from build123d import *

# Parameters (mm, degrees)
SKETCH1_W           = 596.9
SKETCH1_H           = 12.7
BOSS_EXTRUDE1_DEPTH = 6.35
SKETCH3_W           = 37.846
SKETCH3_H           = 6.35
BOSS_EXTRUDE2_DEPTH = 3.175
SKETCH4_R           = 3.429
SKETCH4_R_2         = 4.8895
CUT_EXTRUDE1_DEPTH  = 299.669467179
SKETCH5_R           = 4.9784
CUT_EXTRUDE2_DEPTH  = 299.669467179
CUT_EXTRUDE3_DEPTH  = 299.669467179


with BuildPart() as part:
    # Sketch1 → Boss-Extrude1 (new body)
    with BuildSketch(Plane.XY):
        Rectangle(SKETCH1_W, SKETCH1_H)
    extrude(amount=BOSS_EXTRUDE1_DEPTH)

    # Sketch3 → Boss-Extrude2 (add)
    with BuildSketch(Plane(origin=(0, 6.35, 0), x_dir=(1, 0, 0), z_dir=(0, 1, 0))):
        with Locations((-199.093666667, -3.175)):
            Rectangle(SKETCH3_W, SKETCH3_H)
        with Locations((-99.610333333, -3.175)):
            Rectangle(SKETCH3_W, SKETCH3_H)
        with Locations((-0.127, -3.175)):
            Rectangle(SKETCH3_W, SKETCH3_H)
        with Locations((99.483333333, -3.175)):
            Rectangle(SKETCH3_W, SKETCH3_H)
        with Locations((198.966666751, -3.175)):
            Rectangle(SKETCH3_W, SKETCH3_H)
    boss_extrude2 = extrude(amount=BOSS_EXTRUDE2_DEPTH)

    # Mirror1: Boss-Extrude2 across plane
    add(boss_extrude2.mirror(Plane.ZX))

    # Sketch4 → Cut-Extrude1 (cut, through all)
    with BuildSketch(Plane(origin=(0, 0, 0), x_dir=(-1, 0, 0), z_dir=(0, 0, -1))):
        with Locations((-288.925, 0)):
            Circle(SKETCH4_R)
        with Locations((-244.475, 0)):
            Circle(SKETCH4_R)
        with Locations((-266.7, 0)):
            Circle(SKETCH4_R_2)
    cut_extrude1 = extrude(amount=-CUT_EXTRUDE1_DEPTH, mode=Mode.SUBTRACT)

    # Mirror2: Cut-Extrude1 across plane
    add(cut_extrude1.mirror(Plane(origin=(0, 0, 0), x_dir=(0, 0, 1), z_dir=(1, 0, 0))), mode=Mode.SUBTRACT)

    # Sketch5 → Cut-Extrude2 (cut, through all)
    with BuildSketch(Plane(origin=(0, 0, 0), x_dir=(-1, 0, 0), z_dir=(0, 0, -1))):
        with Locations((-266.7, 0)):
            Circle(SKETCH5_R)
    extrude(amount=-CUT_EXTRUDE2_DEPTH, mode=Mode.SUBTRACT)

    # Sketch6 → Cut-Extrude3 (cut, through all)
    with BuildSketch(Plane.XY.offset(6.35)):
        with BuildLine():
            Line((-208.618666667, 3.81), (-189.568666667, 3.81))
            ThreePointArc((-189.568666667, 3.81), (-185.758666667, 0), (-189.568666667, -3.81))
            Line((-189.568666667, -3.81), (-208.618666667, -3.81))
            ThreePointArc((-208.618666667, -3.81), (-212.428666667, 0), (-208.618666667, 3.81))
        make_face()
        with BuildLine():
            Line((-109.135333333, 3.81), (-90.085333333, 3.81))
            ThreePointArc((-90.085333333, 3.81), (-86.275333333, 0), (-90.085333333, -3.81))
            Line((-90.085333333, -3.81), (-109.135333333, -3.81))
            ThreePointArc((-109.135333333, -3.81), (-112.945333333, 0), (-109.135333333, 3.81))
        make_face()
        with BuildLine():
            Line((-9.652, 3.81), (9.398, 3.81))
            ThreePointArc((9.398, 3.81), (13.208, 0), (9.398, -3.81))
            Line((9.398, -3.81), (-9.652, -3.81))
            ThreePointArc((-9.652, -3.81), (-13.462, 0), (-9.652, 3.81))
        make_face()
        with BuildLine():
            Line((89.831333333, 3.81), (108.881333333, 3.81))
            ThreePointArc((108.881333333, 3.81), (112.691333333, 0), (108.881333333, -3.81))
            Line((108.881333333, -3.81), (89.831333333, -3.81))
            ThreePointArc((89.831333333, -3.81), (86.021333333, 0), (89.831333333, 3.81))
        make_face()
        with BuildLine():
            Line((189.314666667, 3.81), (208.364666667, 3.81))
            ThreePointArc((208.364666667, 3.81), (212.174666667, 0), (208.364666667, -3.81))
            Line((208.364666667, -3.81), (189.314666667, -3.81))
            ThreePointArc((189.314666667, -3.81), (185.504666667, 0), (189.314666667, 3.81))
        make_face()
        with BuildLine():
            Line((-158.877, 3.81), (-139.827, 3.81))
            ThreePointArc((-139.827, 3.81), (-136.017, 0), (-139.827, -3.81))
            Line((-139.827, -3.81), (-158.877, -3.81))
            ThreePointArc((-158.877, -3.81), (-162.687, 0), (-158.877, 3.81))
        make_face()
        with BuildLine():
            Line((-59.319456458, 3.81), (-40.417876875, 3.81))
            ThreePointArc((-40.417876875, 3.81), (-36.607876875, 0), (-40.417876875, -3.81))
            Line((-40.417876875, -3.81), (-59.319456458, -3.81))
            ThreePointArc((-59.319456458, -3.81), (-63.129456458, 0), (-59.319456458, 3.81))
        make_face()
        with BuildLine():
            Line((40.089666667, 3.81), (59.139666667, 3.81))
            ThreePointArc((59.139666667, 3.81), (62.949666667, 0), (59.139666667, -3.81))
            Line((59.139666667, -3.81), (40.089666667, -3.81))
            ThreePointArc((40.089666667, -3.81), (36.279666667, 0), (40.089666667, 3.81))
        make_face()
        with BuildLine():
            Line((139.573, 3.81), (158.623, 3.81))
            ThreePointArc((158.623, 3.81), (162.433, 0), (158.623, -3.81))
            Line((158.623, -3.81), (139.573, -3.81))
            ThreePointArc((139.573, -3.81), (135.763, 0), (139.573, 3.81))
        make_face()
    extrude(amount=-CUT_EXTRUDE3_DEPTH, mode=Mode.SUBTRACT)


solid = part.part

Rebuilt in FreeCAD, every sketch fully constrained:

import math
import FreeCAD as App
import Part
import Sketcher

V = App.Vector
Q = App.Units.Quantity


def add_polygon(sketch, points):
    """Adds a closed chain of lines whose ends are joined by coincident constraints."""
    first, n = sketch.GeometryCount, len(points)
    for a, b in zip(points, points[1:] + points[:1]):
        sketch.addGeometry(Part.LineSegment(App.Vector(*a, 0), App.Vector(*b, 0)), False)
    for i in range(n):
        sketch.addConstraint(Sketcher.Constraint("Coincident", first + i, 2, first + (i + 1) % n, 1))

doc = App.newDocument("Part")
body = doc.addObject("PartDesign::Body", "Body")

# Sketch on XY plane
sketch1 = body.newObject("Sketcher::SketchObject", "Sketch")
sketch1.AttachmentSupport = (doc.getObject("XY_Plane"), [""])
sketch1.MapMode = "FlatFace"
add_polygon(sketch1, [(-298, 6), (-298, -6), (298, -6), (298, 6)])  # lines 0-3
sketch1.addConstraint(Sketcher.Constraint("Vertical", 0))
sketch1.addConstraint(Sketcher.Constraint("Horizontal", 1))
sketch1.addConstraint(Sketcher.Constraint("Vertical", 2))
sketch1.addConstraint(Sketcher.Constraint("Horizontal", 3))
sketch1.addConstraint(Sketcher.Constraint("Symmetric", 0, 2, 2, 2, -1, 1))
sketch1.addConstraint(Sketcher.Constraint("DistanceX", 1, 1, 1, 2, Q("23.5 in")))
sketch1.addConstraint(Sketcher.Constraint("DistanceY", 0, 2, 0, 1, Q("0.5 in")))
pad1 = body.newObject("PartDesign::Pad", "Pad")
pad1.Profile = sketch1
pad1.Length = Q("0.25 in")

# Sketch on XZ plane
sketch2 = body.newObject("Sketcher::SketchObject", "Sketch001")
sketch2.AttachmentSupport = (doc.getObject("XZ_Plane"), [""])
sketch2.MapMode = "FlatFace"
sketch2.AttachmentOffset = App.Placement(V(0, 0, -0.25 * 25.4), App.Rotation())
add_polygon(sketch2, [(-218, 0), (-218, 6), (-180, 6), (-180, 0)])  # lines 0-3
add_polygon(sketch2, [(-119, 0), (-119, 6), (-81, 6), (-81, 0)])  # lines 4-7
add_polygon(sketch2, [(-19, 0), (-19, 6), (19, 6), (19, 0)])  # lines 8-11
add_polygon(sketch2, [(81, 0), (81, 6), (118, 6), (118, 0)])  # lines 12-15
add_polygon(sketch2, [(180, 0), (180, 6), (218, 6), (218, 0)])  # lines 16-19
sketch2.addConstraint(Sketcher.Constraint("Vertical", 0))
sketch2.addConstraint(Sketcher.Constraint("Horizontal", 1))
sketch2.addConstraint(Sketcher.Constraint("Vertical", 2))
sketch2.addConstraint(Sketcher.Constraint("Horizontal", 3))
sketch2.addConstraint(Sketcher.Constraint("Vertical", 4))
sketch2.addConstraint(Sketcher.Constraint("Horizontal", 5))
sketch2.addConstraint(Sketcher.Constraint("Vertical", 6))
sketch2.addConstraint(Sketcher.Constraint("Horizontal", 7))
sketch2.addConstraint(Sketcher.Constraint("Vertical", 8))
sketch2.addConstraint(Sketcher.Constraint("Horizontal", 9))
sketch2.addConstraint(Sketcher.Constraint("Vertical", 10))
sketch2.addConstraint(Sketcher.Constraint("Horizontal", 11))
sketch2.addConstraint(Sketcher.Constraint("Vertical", 12))
sketch2.addConstraint(Sketcher.Constraint("Horizontal", 13))
sketch2.addConstraint(Sketcher.Constraint("Vertical", 14))
sketch2.addConstraint(Sketcher.Constraint("Horizontal", 15))
sketch2.addConstraint(Sketcher.Constraint("Vertical", 16))
sketch2.addConstraint(Sketcher.Constraint("Horizontal", 17))
sketch2.addConstraint(Sketcher.Constraint("Vertical", 18))
sketch2.addConstraint(Sketcher.Constraint("Horizontal", 19))
sketch2.addConstraint(Sketcher.Constraint("PointOnObject", 2, 2, -1))
sketch2.addConstraint(Sketcher.Constraint("PointOnObject", 6, 2, -1))
sketch2.addConstraint(Sketcher.Constraint("PointOnObject", 10, 2, -1))
sketch2.addConstraint(Sketcher.Constraint("PointOnObject", 14, 2, -1))
sketch2.addConstraint(Sketcher.Constraint("PointOnObject", 18, 2, -1))
sketch2.addConstraint(Sketcher.Constraint("Horizontal", 1, 2, 4, 2))
sketch2.addConstraint(Sketcher.Constraint("Horizontal", 5, 2, 8, 2))
sketch2.addConstraint(Sketcher.Constraint("Horizontal", 9, 2, 12, 2))
sketch2.addConstraint(Sketcher.Constraint("Horizontal", 13, 2, 16, 2))
sketch2.addConstraint(Sketcher.Constraint("Equal", 3, 5))
sketch2.addConstraint(Sketcher.Constraint("Equal", 7, 9))
sketch2.addConstraint(Sketcher.Constraint("Equal", 11, 13))
sketch2.addConstraint(Sketcher.Constraint("Equal", 15, 17))
sketch2.addConstraint(Sketcher.Constraint("DistanceX", 1, 1, 1, 2, Q("1.49 in")))
sketch2.addConstraint(Sketcher.Constraint("DistanceY", 0, 1, 0, 2, Q("0.25 in")))
sketch2.addConstraint(Sketcher.Constraint("DistanceX", 8, 2, -1, 1, Q("0.75 in")))
sketch2.addConstraint(Sketcher.Constraint("DistanceX", 0, 2, -1, 1, 218.016667))
sketch2.addConstraint(Sketcher.Constraint("DistanceX", 4, 2, -1, 1, 118.533333))
sketch2.addConstraint(Sketcher.Constraint("DistanceX", -1, 1, 12, 2, 80.560333))
sketch2.addConstraint(Sketcher.Constraint("DistanceX", -1, 1, 16, 2, 180.043667))
pad2 = body.newObject("PartDesign::Pad", "Pad001")
pad2.Profile = sketch2
pad2.Length = Q("0.125 in")
pad2.Reversed = True
doc.recompute()

mirrored = body.newObject("PartDesign::Mirrored", "Mirrored")
mirrored.Originals = [pad2]
mirrored.MirrorPlane = (doc.getObject("XZ_Plane"), [""])
body.Tip = mirrored

# Sketch on XY plane
sketch3 = body.newObject("Sketcher::SketchObject", "Sketch002")
sketch3.AttachmentSupport = (doc.getObject("XY_Plane"), [""])
sketch3.MapMode = "FlatFace"
sketch3.addGeometry(Part.Circle(V(288.9, 0, 0), V(0, 0, 1), 3.4), False)
sketch3.addGeometry(Part.Circle(V(244.5, 0, 0), V(0, 0, 1), 3.4), False)
sketch3.addGeometry(Part.Circle(V(266.7, 0, 0), V(0, 0, 1), 4.9), False)
sketch3.addConstraint(Sketcher.Constraint("Equal", 0, 1))
sketch3.addConstraint(Sketcher.Constraint("PointOnObject", 0, 3, -1))
sketch3.addConstraint(Sketcher.Constraint("PointOnObject", 1, 3, -1))
sketch3.addConstraint(Sketcher.Constraint("PointOnObject", 2, 3, -1))
sketch3.addConstraint(Sketcher.Constraint("Diameter", 0, Q("0.27 in")))
sketch3.addConstraint(Sketcher.Constraint("Diameter", 2, Q("0.385 in")))
sketch3.addConstraint(Sketcher.Constraint("DistanceX", -1, 1, 2, 3, Q("10.5 in")))
sketch3.addConstraint(Sketcher.Constraint("DistanceX", 1, 3, 0, 3, Q("1.75 in")))
sketch3.addConstraint(Sketcher.Constraint("DistanceX", -1, 1, 0, 3, Q("11.375 in")))
pocket1 = body.newObject("PartDesign::Pocket", "Pocket")
pocket1.Profile = sketch3
pocket1.Type = "ThroughAll"
pocket1.Reversed = True
doc.recompute()

mirrored2 = body.newObject("PartDesign::Mirrored", "Mirrored001")
mirrored2.Originals = [pocket1]
mirrored2.MirrorPlane = (doc.getObject("YZ_Plane"), [""])
body.Tip = mirrored2

# Sketch on XY plane
sketch4 = body.newObject("Sketcher::SketchObject", "Sketch003")
sketch4.AttachmentSupport = (doc.getObject("XY_Plane"), [""])
sketch4.MapMode = "FlatFace"
sketch4.addGeometry(Part.Circle(V(266.7, 0, 0), V(0, 0, 1), 5), False)
sketch4.addConstraint(Sketcher.Constraint("PointOnObject", 0, 3, -1))
sketch4.addConstraint(Sketcher.Constraint("Diameter", 0, Q("0.392 in")))
sketch4.addConstraint(Sketcher.Constraint("DistanceX", -1, 1, 0, 3, Q("10.5 in")))
pocket2 = body.newObject("PartDesign::Pocket", "Pocket001")
pocket2.Profile = sketch4
pocket2.Type = "ThroughAll"
pocket2.Reversed = True

# Sketch on XY plane
sketch5 = body.newObject("Sketcher::SketchObject", "Sketch004")
sketch5.AttachmentSupport = (doc.getObject("XY_Plane"), [""])
sketch5.MapMode = "FlatFace"
sketch5.AttachmentOffset = App.Placement(V(0, 0, 0.25 * 25.4), App.Rotation())
sketch5.addGeometry(Part.LineSegment(V(-189.6, 3.8, 0), V(-208.6, 3.8, 0)), False)
sketch5.addGeometry(Part.ArcOfCircle(Part.Circle(V(-208.6, 0, 0), V(0, 0, 1), 3.8), math.radians(90), math.radians(270)), False)
sketch5.addGeometry(Part.LineSegment(V(-208.6, -3.8, 0), V(-189.6, -3.8, 0)), False)
sketch5.addGeometry(Part.ArcOfCircle(Part.Circle(V(-189.6, 0, 0), V(0, 0, 1), 3.8), math.radians(-90), math.radians(90)), False)
sketch5.addGeometry(Part.LineSegment(V(-90.1, 3.8, 0), V(-109.1, 3.8, 0)), False)
sketch5.addGeometry(Part.ArcOfCircle(Part.Circle(V(-109.1, 0, 0), V(0, 0, 1), 3.8), math.radians(90), math.radians(270)), False)
sketch5.addGeometry(Part.LineSegment(V(-109.1, -3.8, 0), V(-90.1, -3.8, 0)), False)
sketch5.addGeometry(Part.ArcOfCircle(Part.Circle(V(-90.1, 0, 0), V(0, 0, 1), 3.8), math.radians(-90), math.radians(90)), False)
sketch5.addGeometry(Part.LineSegment(V(9.4, 3.8, 0), V(-9.7, 3.8, 0)), False)
sketch5.addGeometry(Part.ArcOfCircle(Part.Circle(V(-9.7, 0, 0), V(0, 0, 1), 3.8), math.radians(90), math.radians(270)), False)
sketch5.addGeometry(Part.LineSegment(V(-9.7, -3.8, 0), V(9.4, -3.8, 0)), False)
sketch5.addGeometry(Part.ArcOfCircle(Part.Circle(V(9.4, 0, 0), V(0, 0, 1), 3.8), math.radians(-90), math.radians(90)), False)
sketch5.addGeometry(Part.LineSegment(V(108.9, 3.8, 0), V(89.8, 3.8, 0)), False)
sketch5.addGeometry(Part.ArcOfCircle(Part.Circle(V(89.8, 0, 0), V(0, 0, 1), 3.8), math.radians(90), math.radians(270)), False)
sketch5.addGeometry(Part.LineSegment(V(89.8, -3.8, 0), V(108.9, -3.8, 0)), False)
sketch5.addGeometry(Part.ArcOfCircle(Part.Circle(V(108.9, 0, 0), V(0, 0, 1), 3.8), math.radians(-90), math.radians(90)), False)
sketch5.addGeometry(Part.LineSegment(V(208.4, 3.8, 0), V(189.3, 3.8, 0)), False)
sketch5.addGeometry(Part.ArcOfCircle(Part.Circle(V(189.3, 0, 0), V(0, 0, 1), 3.8), math.radians(90), math.radians(270)), False)
sketch5.addGeometry(Part.LineSegment(V(189.3, -3.8, 0), V(208.4, -3.8, 0)), False)
sketch5.addGeometry(Part.ArcOfCircle(Part.Circle(V(208.4, 0, 0), V(0, 0, 1), 3.8), math.radians(-90), math.radians(90)), False)
sketch5.addGeometry(Part.LineSegment(V(-139.8, 3.8, 0), V(-158.9, 3.8, 0)), False)
sketch5.addGeometry(Part.ArcOfCircle(Part.Circle(V(-158.9, 0, 0), V(0, 0, 1), 3.8), math.radians(90), math.radians(270)), False)
sketch5.addGeometry(Part.LineSegment(V(-158.9, -3.8, 0), V(-139.8, -3.8, 0)), False)
sketch5.addGeometry(Part.ArcOfCircle(Part.Circle(V(-139.8, 0, 0), V(0, 0, 1), 3.8), math.radians(-90), math.radians(90)), False)
sketch5.addGeometry(Part.LineSegment(V(-40.4, 3.8, 0), V(-59.3, 3.8, 0)), False)
sketch5.addGeometry(Part.ArcOfCircle(Part.Circle(V(-59.3, 0, 0), V(0, 0, 1), 3.8), math.radians(90), math.radians(270)), False)
sketch5.addGeometry(Part.LineSegment(V(-59.3, -3.8, 0), V(-40.4, -3.8, 0)), False)
sketch5.addGeometry(Part.ArcOfCircle(Part.Circle(V(-40.4, 0, 0), V(0, 0, 1), 3.8), math.radians(-90), math.radians(90)), False)
sketch5.addGeometry(Part.LineSegment(V(59.1, 3.8, 0), V(40.1, 3.8, 0)), False)
sketch5.addGeometry(Part.ArcOfCircle(Part.Circle(V(40.1, 0, 0), V(0, 0, 1), 3.8), math.radians(90), math.radians(270)), False)
sketch5.addGeometry(Part.LineSegment(V(40.1, -3.8, 0), V(59.1, -3.8, 0)), False)
sketch5.addGeometry(Part.ArcOfCircle(Part.Circle(V(59.1, 0, 0), V(0, 0, 1), 3.8), math.radians(-90), math.radians(90)), False)
sketch5.addGeometry(Part.LineSegment(V(158.6, 3.8, 0), V(139.6, 3.8, 0)), False)
sketch5.addGeometry(Part.ArcOfCircle(Part.Circle(V(139.6, 0, 0), V(0, 0, 1), 3.8), math.radians(90), math.radians(270)), False)
sketch5.addGeometry(Part.LineSegment(V(139.6, -3.8, 0), V(158.6, -3.8, 0)), False)
sketch5.addGeometry(Part.ArcOfCircle(Part.Circle(V(158.6, 0, 0), V(0, 0, 1), 3.8), math.radians(-90), math.radians(90)), False)
sketch5.addConstraint(Sketcher.Constraint("Tangent", 0, 2, 1, 1))
sketch5.addConstraint(Sketcher.Constraint("Tangent", 1, 2, 2, 1))
sketch5.addConstraint(Sketcher.Constraint("Tangent", 2, 2, 3, 1))
sketch5.addConstraint(Sketcher.Constraint("Tangent", 3, 2, 0, 1))
sketch5.addConstraint(Sketcher.Constraint("Tangent", 4, 2, 5, 1))
sketch5.addConstraint(Sketcher.Constraint("Tangent", 5, 2, 6, 1))
sketch5.addConstraint(Sketcher.Constraint("Tangent", 6, 2, 7, 1))
sketch5.addConstraint(Sketcher.Constraint("Tangent", 7, 2, 4, 1))
sketch5.addConstraint(Sketcher.Constraint("Tangent", 8, 2, 9, 1))
sketch5.addConstraint(Sketcher.Constraint("Tangent", 9, 2, 10, 1))
sketch5.addConstraint(Sketcher.Constraint("Tangent", 10, 2, 11, 1))
sketch5.addConstraint(Sketcher.Constraint("Tangent", 11, 2, 8, 1))
sketch5.addConstraint(Sketcher.Constraint("Tangent", 12, 2, 13, 1))
sketch5.addConstraint(Sketcher.Constraint("Tangent", 13, 2, 14, 1))
sketch5.addConstraint(Sketcher.Constraint("Tangent", 14, 2, 15, 1))
sketch5.addConstraint(Sketcher.Constraint("Tangent", 15, 2, 12, 1))
sketch5.addConstraint(Sketcher.Constraint("Tangent", 16, 2, 17, 1))
sketch5.addConstraint(Sketcher.Constraint("Tangent", 17, 2, 18, 1))
sketch5.addConstraint(Sketcher.Constraint("Tangent", 18, 2, 19, 1))
sketch5.addConstraint(Sketcher.Constraint("Tangent", 19, 2, 16, 1))
sketch5.addConstraint(Sketcher.Constraint("Tangent", 20, 2, 21, 1))
sketch5.addConstraint(Sketcher.Constraint("Tangent", 21, 2, 22, 1))
sketch5.addConstraint(Sketcher.Constraint("Tangent", 22, 2, 23, 1))
sketch5.addConstraint(Sketcher.Constraint("Tangent", 23, 2, 20, 1))
sketch5.addConstraint(Sketcher.Constraint("Tangent", 24, 2, 25, 1))
sketch5.addConstraint(Sketcher.Constraint("Tangent", 25, 2, 26, 1))
sketch5.addConstraint(Sketcher.Constraint("Tangent", 26, 2, 27, 1))
sketch5.addConstraint(Sketcher.Constraint("Tangent", 27, 2, 24, 1))
sketch5.addConstraint(Sketcher.Constraint("Tangent", 28, 2, 29, 1))
sketch5.addConstraint(Sketcher.Constraint("Tangent", 29, 2, 30, 1))
sketch5.addConstraint(Sketcher.Constraint("Tangent", 30, 2, 31, 1))
sketch5.addConstraint(Sketcher.Constraint("Tangent", 31, 2, 28, 1))
sketch5.addConstraint(Sketcher.Constraint("Tangent", 32, 2, 33, 1))
sketch5.addConstraint(Sketcher.Constraint("Tangent", 33, 2, 34, 1))
sketch5.addConstraint(Sketcher.Constraint("Tangent", 34, 2, 35, 1))
sketch5.addConstraint(Sketcher.Constraint("Tangent", 35, 2, 32, 1))
sketch5.addConstraint(Sketcher.Constraint("Horizontal", 0))
sketch5.addConstraint(Sketcher.Constraint("Horizontal", 2))
sketch5.addConstraint(Sketcher.Constraint("Horizontal", 4))
sketch5.addConstraint(Sketcher.Constraint("Horizontal", 6))
sketch5.addConstraint(Sketcher.Constraint("Horizontal", 8))
sketch5.addConstraint(Sketcher.Constraint("Horizontal", 10))
sketch5.addConstraint(Sketcher.Constraint("Horizontal", 12))
sketch5.addConstraint(Sketcher.Constraint("Horizontal", 14))
sketch5.addConstraint(Sketcher.Constraint("Horizontal", 16))
sketch5.addConstraint(Sketcher.Constraint("Horizontal", 18))
sketch5.addConstraint(Sketcher.Constraint("Horizontal", 20))
sketch5.addConstraint(Sketcher.Constraint("Horizontal", 22))
sketch5.addConstraint(Sketcher.Constraint("Horizontal", 24))
sketch5.addConstraint(Sketcher.Constraint("Horizontal", 26))
sketch5.addConstraint(Sketcher.Constraint("Horizontal", 28))
sketch5.addConstraint(Sketcher.Constraint("Horizontal", 30))
sketch5.addConstraint(Sketcher.Constraint("Horizontal", 32))
sketch5.addConstraint(Sketcher.Constraint("Horizontal", 34))
sketch5.addConstraint(Sketcher.Constraint("Equal", 3, 5))
sketch5.addConstraint(Sketcher.Constraint("Equal", 7, 9))
sketch5.addConstraint(Sketcher.Constraint("Equal", 11, 13))
sketch5.addConstraint(Sketcher.Constraint("Equal", 15, 17))
sketch5.addConstraint(Sketcher.Constraint("Equal", 19, 21))
sketch5.addConstraint(Sketcher.Constraint("Equal", 23, 25))
sketch5.addConstraint(Sketcher.Constraint("Equal", 27, 29))
sketch5.addConstraint(Sketcher.Constraint("Equal", 31, 33))
sketch5.addConstraint(Sketcher.Constraint("PointOnObject", 1, 3, -1))
sketch5.addConstraint(Sketcher.Constraint("PointOnObject", 5, 3, -1))
sketch5.addConstraint(Sketcher.Constraint("PointOnObject", 9, 3, -1))
sketch5.addConstraint(Sketcher.Constraint("PointOnObject", 13, 3, -1))
sketch5.addConstraint(Sketcher.Constraint("PointOnObject", 17, 3, -1))
sketch5.addConstraint(Sketcher.Constraint("PointOnObject", 21, 3, -1))
sketch5.addConstraint(Sketcher.Constraint("PointOnObject", 25, 3, -1))
sketch5.addConstraint(Sketcher.Constraint("PointOnObject", 29, 3, -1))
sketch5.addConstraint(Sketcher.Constraint("PointOnObject", 33, 3, -1))
sketch5.addConstraint(Sketcher.Constraint("Equal", 2, 4))
sketch5.addConstraint(Sketcher.Constraint("Equal", 6, 8))
sketch5.addConstraint(Sketcher.Constraint("Equal", 10, 12))
sketch5.addConstraint(Sketcher.Constraint("Equal", 14, 16))
sketch5.addConstraint(Sketcher.Constraint("Equal", 18, 20))
sketch5.addConstraint(Sketcher.Constraint("Equal", 22, 28))
sketch5.addConstraint(Sketcher.Constraint("Equal", 30, 32))
sketch5.addConstraint(Sketcher.Constraint("Radius", 1, Q("0.15 in")))
sketch5.addConstraint(Sketcher.Constraint("DistanceX", 3, 3, 13, 3, Q("11 in")))
sketch5.addConstraint(Sketcher.Constraint("DistanceX", 7, 3, 17, 3, Q("11 in")))
sketch5.addConstraint(Sketcher.Constraint("DistanceX", 0, 2, 0, 1, Q("0.75 in")))
sketch5.addConstraint(Sketcher.Constraint("DistanceX", 9, 3, -1, 1, Q("0.38 in")))
sketch5.addConstraint(Sketcher.Constraint("DistanceX", 21, 3, -1, 1, Q("6.255 in")))
sketch5.addConstraint(Sketcher.Constraint("DistanceX", -1, 1, 33, 3, Q("5.495 in")))
sketch5.addConstraint(Sketcher.Constraint("DistanceX", 24, 2, 24, 1, 18.90158))
sketch5.addConstraint(Sketcher.Constraint("DistanceX", 1, 3, -1, 1, 208.618667))
sketch5.addConstraint(Sketcher.Constraint("DistanceX", 5, 3, -1, 1, 109.135333))
sketch5.addConstraint(Sketcher.Constraint("DistanceX", 25, 3, -1, 1, 59.319456))
sketch5.addConstraint(Sketcher.Constraint("DistanceX", -1, 1, 29, 3, 40.089667))
pocket3 = body.newObject("PartDesign::Pocket", "Pocket002")
pocket3.Profile = sketch5
pocket3.Type = "ThroughAll"

doc.recompute()
